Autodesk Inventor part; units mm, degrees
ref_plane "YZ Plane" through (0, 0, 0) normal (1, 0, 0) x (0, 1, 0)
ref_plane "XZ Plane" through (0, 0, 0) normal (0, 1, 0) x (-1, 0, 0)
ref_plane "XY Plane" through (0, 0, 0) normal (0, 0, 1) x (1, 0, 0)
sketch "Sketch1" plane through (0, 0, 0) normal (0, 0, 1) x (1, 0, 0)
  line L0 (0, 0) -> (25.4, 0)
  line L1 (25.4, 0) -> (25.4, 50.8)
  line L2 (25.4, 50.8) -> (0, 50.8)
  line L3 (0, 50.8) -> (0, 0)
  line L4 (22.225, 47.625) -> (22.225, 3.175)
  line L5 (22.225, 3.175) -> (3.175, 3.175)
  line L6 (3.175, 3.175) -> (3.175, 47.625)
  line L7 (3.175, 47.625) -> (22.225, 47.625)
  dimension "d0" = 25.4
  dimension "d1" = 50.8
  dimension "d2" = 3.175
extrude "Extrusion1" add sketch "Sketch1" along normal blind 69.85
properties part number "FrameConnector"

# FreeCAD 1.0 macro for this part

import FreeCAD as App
import Part
import Sketcher
Q = App.Units.Quantity

doc = App.newDocument("Part")
body = doc.addObject("PartDesign::Body", "Body")

# Sketch on XY plane
sketch1 = doc.addObject("Sketcher::SketchObject", "Sketch")
body.addObject(sketch1)
sketch1.AttachmentSupport = (doc.XY_Plane, [""])
sketch1.MapMode = "FlatFace"
sketch1.addGeometry([
    Part.LineSegment(App.Vector(0, 51, 0), App.Vector(0, 0, 0)),  # 0
    Part.LineSegment(App.Vector(0, 0, 0), App.Vector(25, 0, 0)),  # 1
    Part.LineSegment(App.Vector(25, 0, 0), App.Vector(25, 51, 0)),  # 2
    Part.LineSegment(App.Vector(25, 51, 0), App.Vector(0, 51, 0)),  # 3
    Part.LineSegment(App.Vector(3, 48, 0), App.Vector(22, 48, 0)),  # 4
    Part.LineSegment(App.Vector(22, 48, 0), App.Vector(22, 3, 0)),  # 5
    Part.LineSegment(App.Vector(22, 3, 0), App.Vector(3, 3, 0)),  # 6
    Part.LineSegment(App.Vector(3, 3, 0), App.Vector(3, 48, 0)),  # 7
], False)
sketch1.addConstraint([
    Sketcher.Constraint("Coincident", 0, 2, 1, 1),
    Sketcher.Constraint("Coincident", 1, 2, 2, 1),
    Sketcher.Constraint("Coincident", 2, 2, 3, 1),
    Sketcher.Constraint("Coincident", 3, 2, 0, 1),
    Sketcher.Constraint("Coincident", 4, 2, 5, 1),
    Sketcher.Constraint("Coincident", 5, 2, 6, 1),
    Sketcher.Constraint("Coincident", 6, 2, 7, 1),
    Sketcher.Constraint("Coincident", 7, 2, 4, 1),
    Sketcher.Constraint("Vertical", 0),
    Sketcher.Constraint("Horizontal", 1),
    Sketcher.Constraint("Vertical", 2),
    Sketcher.Constraint("Horizontal", 3),
    Sketcher.Constraint("Horizontal", 4),
    Sketcher.Constraint("Vertical", 5),
    Sketcher.Constraint("Horizontal", 6),
    Sketcher.Constraint("Vertical", 7),
    Sketcher.Constraint("Coincident", 0, 2, -1, 1),
    Sketcher.Constraint("DistanceX", 1, 1, 1, 2, Q("1 in")),
    Sketcher.Constraint("DistanceY", 0, 2, 0, 1, Q("2 in")),
    Sketcher.Constraint("DistanceY", -1, 1, 5, 2, Q("0.125 in")),
    Sketcher.Constraint("DistanceX", -1, 1, 6, 2, Q("0.125 in")),
    Sketcher.Constraint("DistanceX", 4, 2, 2, 2, Q("0.125 in")),
    Sketcher.Constraint("DistanceY", 4, 2, 2, 2, Q("0.125 in")),
])
pad1 = doc.addObject("PartDesign::Pad", "Pad")
body.addObject(pad1)
pad1.Profile = sketch1
pad1.Length = Q("2.75 in")

doc.recompute()
